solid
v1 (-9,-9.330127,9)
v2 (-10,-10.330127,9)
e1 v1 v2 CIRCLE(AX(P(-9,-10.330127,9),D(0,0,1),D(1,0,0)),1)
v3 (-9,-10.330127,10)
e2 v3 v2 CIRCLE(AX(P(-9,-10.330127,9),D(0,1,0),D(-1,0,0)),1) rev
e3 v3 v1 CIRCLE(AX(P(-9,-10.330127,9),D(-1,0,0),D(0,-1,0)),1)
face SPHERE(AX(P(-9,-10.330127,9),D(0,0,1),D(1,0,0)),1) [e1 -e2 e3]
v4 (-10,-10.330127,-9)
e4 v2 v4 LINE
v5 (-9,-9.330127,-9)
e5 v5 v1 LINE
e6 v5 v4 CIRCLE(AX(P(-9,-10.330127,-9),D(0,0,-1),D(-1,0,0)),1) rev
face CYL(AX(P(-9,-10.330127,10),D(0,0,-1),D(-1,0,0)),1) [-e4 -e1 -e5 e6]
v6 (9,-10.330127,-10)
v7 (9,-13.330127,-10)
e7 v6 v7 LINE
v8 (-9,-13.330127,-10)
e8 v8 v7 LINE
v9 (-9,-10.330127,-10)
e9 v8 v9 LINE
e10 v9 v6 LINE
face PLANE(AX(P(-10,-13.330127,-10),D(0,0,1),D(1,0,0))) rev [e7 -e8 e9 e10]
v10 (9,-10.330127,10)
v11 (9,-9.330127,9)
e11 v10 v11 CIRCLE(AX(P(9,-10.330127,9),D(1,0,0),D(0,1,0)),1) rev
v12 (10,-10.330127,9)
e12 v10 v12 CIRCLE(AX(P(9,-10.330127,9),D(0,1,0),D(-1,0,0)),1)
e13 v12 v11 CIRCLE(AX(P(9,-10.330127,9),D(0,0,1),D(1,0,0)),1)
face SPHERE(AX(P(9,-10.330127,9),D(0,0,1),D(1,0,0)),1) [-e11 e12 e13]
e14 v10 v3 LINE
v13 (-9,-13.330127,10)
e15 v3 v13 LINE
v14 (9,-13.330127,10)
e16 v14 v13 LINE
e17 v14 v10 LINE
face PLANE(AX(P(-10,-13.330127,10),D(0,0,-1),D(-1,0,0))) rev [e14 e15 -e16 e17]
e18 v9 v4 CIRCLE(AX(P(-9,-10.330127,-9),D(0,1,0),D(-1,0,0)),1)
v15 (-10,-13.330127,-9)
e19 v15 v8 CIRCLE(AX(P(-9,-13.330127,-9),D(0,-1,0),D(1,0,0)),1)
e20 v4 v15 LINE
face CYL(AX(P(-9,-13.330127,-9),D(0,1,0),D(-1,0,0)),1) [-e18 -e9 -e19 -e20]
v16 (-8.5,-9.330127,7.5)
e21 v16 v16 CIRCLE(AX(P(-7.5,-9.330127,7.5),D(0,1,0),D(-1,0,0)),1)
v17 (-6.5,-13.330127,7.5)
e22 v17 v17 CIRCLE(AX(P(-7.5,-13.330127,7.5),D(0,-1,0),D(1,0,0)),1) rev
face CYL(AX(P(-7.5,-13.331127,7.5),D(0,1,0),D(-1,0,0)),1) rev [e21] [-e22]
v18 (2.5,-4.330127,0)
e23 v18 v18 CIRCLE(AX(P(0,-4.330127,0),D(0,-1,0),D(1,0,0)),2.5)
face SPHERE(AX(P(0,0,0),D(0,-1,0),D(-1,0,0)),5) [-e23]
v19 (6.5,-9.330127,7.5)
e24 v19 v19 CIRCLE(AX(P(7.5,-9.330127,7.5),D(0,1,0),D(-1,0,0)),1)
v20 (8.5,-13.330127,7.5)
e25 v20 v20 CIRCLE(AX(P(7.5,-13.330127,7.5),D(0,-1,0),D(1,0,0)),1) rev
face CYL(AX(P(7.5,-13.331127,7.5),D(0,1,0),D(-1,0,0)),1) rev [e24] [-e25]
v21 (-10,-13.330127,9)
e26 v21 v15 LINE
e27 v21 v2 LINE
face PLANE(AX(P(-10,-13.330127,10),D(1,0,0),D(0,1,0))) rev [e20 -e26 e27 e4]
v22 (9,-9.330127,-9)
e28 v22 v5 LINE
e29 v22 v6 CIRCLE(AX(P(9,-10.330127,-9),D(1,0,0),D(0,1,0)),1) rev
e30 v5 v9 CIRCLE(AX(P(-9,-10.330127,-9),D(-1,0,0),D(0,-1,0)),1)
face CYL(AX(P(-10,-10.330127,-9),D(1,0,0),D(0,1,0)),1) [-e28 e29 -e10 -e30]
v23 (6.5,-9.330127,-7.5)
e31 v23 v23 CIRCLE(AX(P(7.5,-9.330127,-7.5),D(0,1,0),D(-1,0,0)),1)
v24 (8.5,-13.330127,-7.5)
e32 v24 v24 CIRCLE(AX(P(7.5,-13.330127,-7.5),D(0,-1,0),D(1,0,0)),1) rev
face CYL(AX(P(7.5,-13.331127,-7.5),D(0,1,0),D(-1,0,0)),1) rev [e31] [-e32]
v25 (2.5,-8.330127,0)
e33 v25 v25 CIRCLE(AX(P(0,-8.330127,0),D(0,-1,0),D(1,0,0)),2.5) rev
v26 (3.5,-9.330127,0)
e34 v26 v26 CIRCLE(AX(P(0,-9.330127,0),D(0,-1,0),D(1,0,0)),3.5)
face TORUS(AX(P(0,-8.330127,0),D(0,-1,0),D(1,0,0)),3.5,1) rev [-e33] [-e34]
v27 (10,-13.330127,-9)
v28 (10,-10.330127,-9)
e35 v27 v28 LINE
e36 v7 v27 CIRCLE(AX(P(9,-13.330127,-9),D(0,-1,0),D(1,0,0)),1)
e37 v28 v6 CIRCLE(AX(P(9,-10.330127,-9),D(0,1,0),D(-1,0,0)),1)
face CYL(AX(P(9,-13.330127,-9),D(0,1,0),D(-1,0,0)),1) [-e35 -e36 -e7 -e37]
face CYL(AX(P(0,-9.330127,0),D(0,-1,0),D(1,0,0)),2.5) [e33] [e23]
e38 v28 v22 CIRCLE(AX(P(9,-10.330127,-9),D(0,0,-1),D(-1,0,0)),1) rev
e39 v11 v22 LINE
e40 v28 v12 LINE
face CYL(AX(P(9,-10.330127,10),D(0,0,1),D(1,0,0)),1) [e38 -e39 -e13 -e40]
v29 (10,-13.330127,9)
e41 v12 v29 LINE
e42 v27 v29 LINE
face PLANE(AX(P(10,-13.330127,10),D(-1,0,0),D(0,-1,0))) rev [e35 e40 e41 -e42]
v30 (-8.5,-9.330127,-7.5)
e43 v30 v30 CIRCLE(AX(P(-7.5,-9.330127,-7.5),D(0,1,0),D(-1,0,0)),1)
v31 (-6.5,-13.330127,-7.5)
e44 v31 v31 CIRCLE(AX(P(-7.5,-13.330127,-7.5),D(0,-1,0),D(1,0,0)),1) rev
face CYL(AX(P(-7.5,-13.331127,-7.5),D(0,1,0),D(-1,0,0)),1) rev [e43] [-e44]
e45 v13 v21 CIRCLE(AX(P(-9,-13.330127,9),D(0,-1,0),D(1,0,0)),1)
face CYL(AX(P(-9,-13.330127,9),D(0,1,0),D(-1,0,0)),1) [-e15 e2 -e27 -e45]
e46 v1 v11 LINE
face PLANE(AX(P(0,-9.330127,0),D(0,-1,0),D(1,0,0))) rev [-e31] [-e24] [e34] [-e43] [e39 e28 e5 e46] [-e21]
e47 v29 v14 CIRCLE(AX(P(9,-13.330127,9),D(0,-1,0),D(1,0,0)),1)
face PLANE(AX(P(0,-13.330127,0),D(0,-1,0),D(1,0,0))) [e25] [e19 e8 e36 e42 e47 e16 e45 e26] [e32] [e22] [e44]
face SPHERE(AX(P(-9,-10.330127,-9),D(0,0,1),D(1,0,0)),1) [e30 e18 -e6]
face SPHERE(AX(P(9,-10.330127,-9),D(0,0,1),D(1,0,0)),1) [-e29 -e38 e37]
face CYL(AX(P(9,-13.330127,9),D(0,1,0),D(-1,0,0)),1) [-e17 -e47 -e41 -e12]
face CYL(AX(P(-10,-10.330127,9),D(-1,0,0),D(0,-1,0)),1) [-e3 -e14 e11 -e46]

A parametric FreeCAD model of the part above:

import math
import FreeCAD as App
import Part
import Sketcher
Q = App.Units.Quantity


def edges_at(feature, points):
    """Names of the edges that pass closest to the given points."""
    edges = feature.Shape.Edges
    near = lambda p: min(range(len(edges)), key=lambda i: edges[i].distToShape(Part.Vertex(*p))[0])
    return sorted({f"Edge{near(p) + 1}" for p in points})


def add_polygon(sketch, points):
    """Adds a closed chain of lines whose ends are joined by coincident constraints."""
    first, n = sketch.GeometryCount, len(points)
    for a, b in zip(points, points[1:] + points[:1]):
        sketch.addGeometry(Part.LineSegment(App.Vector(*a, 0), App.Vector(*b, 0)), False)
    for i in range(n):
        sketch.addConstraint(Sketcher.Constraint("Coincident", first + i, 2, first + (i + 1) % n, 1))

doc = App.newDocument("Part")
body = doc.addObject("PartDesign::Body", "Body")

sketch1 = body.newObject("Sketcher::SketchObject", "Sketch")
sketch1.AttachmentSupport = (doc.getObject("XY_Plane"), [""])
sketch1.MapMode = "FlatFace"
sketch1.addGeometry([
    Part.LineSegment(App.Vector(-2.5, -4.330127, 0), App.Vector(-2.5, -9.330127, 0)),
    Part.LineSegment(App.Vector(-2.5, -9.330127, 0), App.Vector(0, -9.330127, 0)),
    Part.LineSegment(App.Vector(0, -9.330127, 0), App.Vector(0, 5, 0)),
    Part.ArcOfCircle(Part.Circle(App.Vector(0, 0, 0), App.Vector(0, 0, 1), 5), math.radians(90), math.radians(240)),
], False)
sketch1.addConstraint([
    Sketcher.Constraint("Coincident", 0, 2, 1, 1),
    Sketcher.Constraint("Coincident", 1, 2, 2, 1),
    Sketcher.Constraint("Coincident", 2, 2, 3, 1),
    Sketcher.Constraint("Coincident", 3, 2, 0, 1),
    Sketcher.Constraint("Vertical", 0),
    Sketcher.Constraint("Horizontal", 1),
    Sketcher.Constraint("Vertical", 2),
    Sketcher.Constraint("Coincident", 3, 3, -1, 1),
    Sketcher.Constraint("PointOnObject", 1, 2, -2),
    Sketcher.Constraint("Radius", 3, Q("5 mm")),
    Sketcher.Constraint("DistanceY", 0, 2, 0, 1, Q("5 mm")),
    Sketcher.Constraint("DistanceX", 1, 1, 1, 2, Q("2.5 mm")),
])
revolution = body.newObject("PartDesign::Revolution", "Revolution")
revolution.Profile = sketch1
revolution.ReferenceAxis = (sketch1, ["V_Axis"])
revolution.Angle = 360

sketch2 = body.newObject("Sketcher::SketchObject", "Sketch001")
sketch2.AttachmentSupport = (doc.getObject("XZ_Plane"), [""])
sketch2.MapMode = "FlatFace"
sketch2.AttachmentOffset = App.Placement(App.Vector(0, 0, 9.330127), App.Rotation())
add_polygon(sketch2, [(-10, 10), (-10, -10), (10, -10), (10, 10)])
sketch2.addConstraint([
    Sketcher.Constraint("Vertical", 0),
    Sketcher.Constraint("Horizontal", 1),
    Sketcher.Constraint("Vertical", 2),
    Sketcher.Constraint("Horizontal", 3),
    Sketcher.Constraint("Symmetric", 0, 2, 2, 2, -1, 1),
    Sketcher.Constraint("Equal", 3, 0),
    Sketcher.Constraint("DistanceX", 1, 1, 1, 2, Q("20 mm")),
])
pad1 = body.newObject("PartDesign::Pad", "Pad")
pad1.Profile = sketch2
pad1.Length = 4

sketch3 = body.newObject("Sketcher::SketchObject", "Sketch002")
sketch3.AttachmentSupport = (doc.getObject("XZ_Plane"), [""])
sketch3.MapMode = "FlatFace"
sketch3.AttachmentOffset = App.Placement(App.Vector(0, 0, 9.330127), App.Rotation())
sketch3.addGeometry(Part.Circle(App.Vector(7.5, 7.5, 0), App.Vector(0, 0, 1), 1), False)
sketch3.addConstraint([
    Sketcher.Constraint("Diameter", 0, Q("2 mm")),
    Sketcher.Constraint("DistanceX", -1, 1, 0, 3, Q("7.5 mm")),
    Sketcher.Constraint("DistanceY", -1, 1, 0, 3, Q("7.5 mm")),
])
pocket1 = body.newObject("PartDesign::Pocket", "Pocket")
pocket1.Profile = sketch3
pocket1.Type = "UpToFirst"
pocket1.Reversed = True

sketch4 = body.newObject("Sketcher::SketchObject", "Sketch003")
sketch4.AttachmentSupport = (doc.getObject("XZ_Plane"), [""])
sketch4.MapMode = "FlatFace"
sketch4.AttachmentOffset = App.Placement(App.Vector(0, 0, 9.330127), App.Rotation())
sketch4.addGeometry(Part.Circle(App.Vector(7.5, -7.5, 0), App.Vector(0, 0, 1), 1), False)
sketch4.addConstraint([
    Sketcher.Constraint("Diameter", 0, Q("2 mm")),
    Sketcher.Constraint("DistanceX", -1, 1, 0, 3, Q("7.5 mm")),
    Sketcher.Constraint("DistanceY", 0, 3, -1, 1, Q("7.5 mm")),
])
pocket2 = body.newObject("PartDesign::Pocket", "Pocket001")
pocket2.Profile = sketch4
pocket2.Type = "UpToFirst"
pocket2.Reversed = True

sketch5 = body.newObject("Sketcher::SketchObject", "Sketch004")
sketch5.AttachmentSupport = (doc.getObject("XZ_Plane"), [""])
sketch5.MapMode = "FlatFace"
sketch5.AttachmentOffset = App.Placement(App.Vector(0, 0, 9.330127), App.Rotation())
sketch5.addGeometry(Part.Circle(App.Vector(-7.5, -7.5, 0), App.Vector(0, 0, 1), 1), False)
sketch5.addConstraint([
    Sketcher.Constraint("Diameter", 0, Q("2 mm")),
    Sketcher.Constraint("DistanceX", 0, 3, -1, 1, Q("7.5 mm")),
    Sketcher.Constraint("DistanceY", 0, 3, -1, 1, Q("7.5 mm")),
])
pocket3 = body.newObject("PartDesign::Pocket", "Pocket002")
pocket3.Profile = sketch5
pocket3.Type = "UpToFirst"
pocket3.Reversed = True

sketch6 = body.newObject("Sketcher::SketchObject", "Sketch005")
sketch6.AttachmentSupport = (doc.getObject("XZ_Plane"), [""])
sketch6.MapMode = "FlatFace"
sketch6.AttachmentOffset = App.Placement(App.Vector(0, 0, 9.330127), App.Rotation())
sketch6.addGeometry(Part.Circle(App.Vector(-7.5, 7.5, 0), App.Vector(0, 0, 1), 1), False)
sketch6.addConstraint([
    Sketcher.Constraint("Diameter", 0, Q("2 mm")),
    Sketcher.Constraint("DistanceX", 0, 3, -1, 1, Q("7.5 mm")),
    Sketcher.Constraint("DistanceY", -1, 1, 0, 3, Q("7.5 mm")),
])
pocket4 = body.newObject("PartDesign::Pocket", "Pocket003")
pocket4.Profile = sketch6
pocket4.Type = "UpToFirst"
pocket4.Reversed = True
doc.recompute()

fillet = body.newObject("PartDesign::Fillet", "Fillet")
fillet.Base = (pocket4, edges_at(pocket4, [
    (-10, -11.33, -10),
    (10, -9.33, 0),
    (10, -11.33, -10),
    (0, -9.33, 10),
    (10, -11.33, 10),
    (2.5, -9.33, 0),
    (-10, -9.33, 0),
    (-10, -11.33, 10),
    (0, -9.33, -10),
]))
fillet.Radius = 1

doc.recompute()
